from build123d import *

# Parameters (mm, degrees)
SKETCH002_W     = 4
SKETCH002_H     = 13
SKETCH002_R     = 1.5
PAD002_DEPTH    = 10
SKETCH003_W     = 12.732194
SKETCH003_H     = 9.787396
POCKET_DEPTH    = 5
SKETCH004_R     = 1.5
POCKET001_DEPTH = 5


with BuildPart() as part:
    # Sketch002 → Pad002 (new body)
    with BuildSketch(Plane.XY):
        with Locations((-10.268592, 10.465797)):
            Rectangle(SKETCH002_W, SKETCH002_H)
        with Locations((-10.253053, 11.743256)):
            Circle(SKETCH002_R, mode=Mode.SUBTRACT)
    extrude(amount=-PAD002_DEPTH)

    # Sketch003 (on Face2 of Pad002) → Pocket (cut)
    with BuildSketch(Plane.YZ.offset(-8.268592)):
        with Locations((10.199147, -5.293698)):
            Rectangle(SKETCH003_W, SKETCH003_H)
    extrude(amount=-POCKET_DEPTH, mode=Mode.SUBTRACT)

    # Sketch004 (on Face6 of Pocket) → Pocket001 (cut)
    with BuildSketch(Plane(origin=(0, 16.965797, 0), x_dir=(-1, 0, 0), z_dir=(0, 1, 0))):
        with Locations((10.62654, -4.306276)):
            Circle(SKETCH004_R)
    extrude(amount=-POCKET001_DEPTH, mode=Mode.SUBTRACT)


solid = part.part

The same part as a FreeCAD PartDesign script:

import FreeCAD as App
import Part
import Sketcher
Q = App.Units.Quantity

doc = App.newDocument("Part")
params = doc.addObject("Spreadsheet::Sheet", "Params")
for row, (alias, value) in enumerate([
    ("sketch1_diameter", "3 mm"),
    ("sketch1_width", "4 mm"),
    ("sketch1_height", "13 mm"),
    ("pad1_length", "10 mm"),
    ("pocket1_length", "5 mm"),
    ("sketch3_diameter", "3 mm"),
    ("pocket2_length", "5 mm"),
], start=1):
    params.set(f"A{row}", alias)
    params.set(f"B{row}", "=" + value)
    params.setAlias(f"B{row}", alias)

body = doc.addObject("PartDesign::Body", "Body")

# Sketch on XY plane
sketch1 = body.newObject("Sketcher::SketchObject", "Sketch")
sketch1.AttachmentSupport = (doc.getObject("XY_Plane"), [""])
sketch1.MapMode = "FlatFace"
sketch1.addGeometry(Part.LineSegment(App.Vector(-12.3, 17, 0), App.Vector(-12.3, 4, 0)), False)
sketch1.addGeometry(Part.LineSegment(App.Vector(-12.3, 4, 0), App.Vector(-8.3, 4, 0)), False)
sketch1.addGeometry(Part.LineSegment(App.Vector(-8.3, 4, 0), App.Vector(-8.3, 17, 0)), False)
sketch1.addGeometry(Part.LineSegment(App.Vector(-8.3, 17, 0), App.Vector(-12.3, 17, 0)), False)
sketch1.addGeometry(Part.Circle(App.Vector(-10.3, 11.7, 0), App.Vector(0, 0, 1), 1.5), False)
sketch1.addConstraint(Sketcher.Constraint("Coincident", 0, 2, 1, 1))
sketch1.addConstraint(Sketcher.Constraint("Coincident", 1, 2, 2, 1))
sketch1.addConstraint(Sketcher.Constraint("Coincident", 2, 2, 3, 1))
sketch1.addConstraint(Sketcher.Constraint("Coincident", 3, 2, 0, 1))
sketch1.addConstraint(Sketcher.Constraint("Vertical", 0))
sketch1.addConstraint(Sketcher.Constraint("Horizontal", 1))
sketch1.addConstraint(Sketcher.Constraint("Vertical", 2))
sketch1.addConstraint(Sketcher.Constraint("Horizontal", 3))
sketch1.addConstraint(Sketcher.Constraint("Diameter", 4, Q("3 mm")))
sketch1.addConstraint(Sketcher.Constraint("DistanceX", 1, 1, 1, 2, Q("4 mm")))
sketch1.addConstraint(Sketcher.Constraint("DistanceY", 0, 2, 0, 1, Q("13 mm")))
sketch1.addConstraint(Sketcher.Constraint("DistanceX", 0, 2, 4, 3, Q("2.015539 mm")))
sketch1.addConstraint(Sketcher.Constraint("DistanceY", 0, 2, 4, 3, Q("7.777459 mm")))
sketch1.addConstraint(Sketcher.Constraint("DistanceX", 4, 3, -1, 1, Q("10.253053 mm")))
sketch1.addConstraint(Sketcher.Constraint("DistanceY", -1, 1, 4, 3, Q("11.743256 mm")))
sketch1.setExpression("Constraints[8]", "Params.sketch1_diameter")
sketch1.setExpression("Constraints[9]", "Params.sketch1_width")
sketch1.setExpression("Constraints[10]", "Params.sketch1_height")
pad1 = body.newObject("PartDesign::Pad", "Pad")
pad1.Profile = sketch1
pad1.setExpression("Length", "Params.pad1_length")
pad1.Reversed = True

# Sketch on YZ plane
sketch2 = body.newObject("Sketcher::SketchObject", "Sketch001")
sketch2.AttachmentSupport = (doc.getObject("YZ_Plane"), [""])
sketch2.MapMode = "FlatFace"
sketch2.AttachmentOffset = App.Placement(App.Vector(0, 0, -8.268592), App.Rotation())
sketch2.addGeometry(Part.LineSegment(App.Vector(4, 0, 0), App.Vector(4, -10, 0)), False)
sketch2.addGeometry(Part.LineSegment(App.Vector(4, -10, 0), App.Vector(17, -10, 0)), False)
sketch2.addGeometry(Part.LineSegment(App.Vector(17, -10, 0), App.Vector(17, 0, 0)), False)
sketch2.addGeometry(Part.LineSegment(App.Vector(17, 0, 0), App.Vector(4, 0, 0)), False)
sketch2.addConstraint(Sketcher.Constraint("Coincident", 0, 2, 1, 1))
sketch2.addConstraint(Sketcher.Constraint("Coincident", 1, 2, 2, 1))
sketch2.addConstraint(Sketcher.Constraint("Coincident", 2, 2, 3, 1))
sketch2.addConstraint(Sketcher.Constraint("Coincident", 3, 2, 0, 1))
sketch2.addConstraint(Sketcher.Constraint("Vertical", 0))
sketch2.addConstraint(Sketcher.Constraint("Horizontal", 1))
sketch2.addConstraint(Sketcher.Constraint("Vertical", 2))
sketch2.addConstraint(Sketcher.Constraint("Horizontal", 3))
sketch2.addConstraint(Sketcher.Constraint("DistanceY", 2, 2, -1, 1, Q("0.4 mm")))
sketch2.addConstraint(Sketcher.Constraint("DistanceX", 1, 1, 1, 2, Q("12.732194 mm")))
sketch2.addConstraint(Sketcher.Constraint("DistanceY", 0, 2, 0, 1, Q("9.787396 mm")))
sketch2.addConstraint(Sketcher.Constraint("DistanceX", -1, 1, 0, 2, Q("3.83305 mm")))
pocket1 = body.newObject("PartDesign::Pocket", "Pocket")
pocket1.Profile = sketch2
pocket1.setExpression("Length", "Params.pocket1_length")

# Sketch on XZ plane
sketch3 = body.newObject("Sketcher::SketchObject", "Sketch002")
sketch3.AttachmentSupport = (doc.getObject("XZ_Plane"), [""])
sketch3.MapMode = "FlatFace"
sketch3.AttachmentOffset = App.Placement(App.Vector(0, 0, -16.965797), App.Rotation())
sketch3.addGeometry(Part.Circle(App.Vector(-10.6, -4.3, 0), App.Vector(0, 0, 1), 1.5), False)
sketch3.addConstraint(Sketcher.Constraint("Diameter", 0, Q("3 mm")))
sketch3.addConstraint(Sketcher.Constraint("DistanceX", 0, 3, -1, 1, Q("10.62654 mm")))
sketch3.addConstraint(Sketcher.Constraint("DistanceY", 0, 3, -1, 1, Q("4.306276 mm")))
sketch3.setExpression("Constraints[0]", "Params.sketch3_diameter")
pocket2 = body.newObject("PartDesign::Pocket", "Pocket001")
pocket2.Profile = sketch3
pocket2.setExpression("Length", "Params.pocket2_length")
pocket2.Reversed = True

doc.recompute()
